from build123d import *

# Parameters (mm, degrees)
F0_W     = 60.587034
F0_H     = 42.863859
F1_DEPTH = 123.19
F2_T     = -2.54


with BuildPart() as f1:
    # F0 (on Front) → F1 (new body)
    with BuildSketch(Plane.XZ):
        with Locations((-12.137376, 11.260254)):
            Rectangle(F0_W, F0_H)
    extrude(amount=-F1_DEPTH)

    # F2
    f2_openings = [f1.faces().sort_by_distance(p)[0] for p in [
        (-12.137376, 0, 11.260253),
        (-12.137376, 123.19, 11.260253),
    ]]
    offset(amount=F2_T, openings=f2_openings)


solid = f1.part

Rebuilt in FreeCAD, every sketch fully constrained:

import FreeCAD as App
import Part
import Sketcher
from FreeCAD import Vector
Q = App.Units.Quantity


def faces_at(feature, points):
    """Names of the faces that lie closest to the given points."""
    faces = feature.Shape.Faces
    near = lambda p: min(range(len(faces)), key=lambda i: faces[i].distToShape(Part.Vertex(*p))[0])
    return sorted({f"Face{near(p) + 1}" for p in points})


def add_polygon(sketch, points):
    """Adds a closed chain of lines whose ends are joined by coincident constraints."""
    first, n = sketch.GeometryCount, len(points)
    for a, b in zip(points, points[1:] + points[:1]):
        sketch.addGeometry(Part.LineSegment(App.Vector(*a, 0), App.Vector(*b, 0)), False)
    for i in range(n):
        sketch.addConstraint(Sketcher.Constraint("Coincident", first + i, 2, first + (i + 1) % n, 1))

doc = App.newDocument("Part")
body = doc.addObject("PartDesign::Body", "Body")

sketch1 = body.newObject("Sketcher::SketchObject", "Sketch")
sketch1.AttachmentSupport = (doc.getObject("XZ_Plane"), [""])
sketch1.MapMode = "FlatFace"
add_polygon(sketch1, [(-42, 33), (-42, -10), (18, -10), (18, 33)])
sketch1.addConstraint(Sketcher.Constraint("Vertical", 0))
sketch1.addConstraint(Sketcher.Constraint("Horizontal", 1))
sketch1.addConstraint(Sketcher.Constraint("Vertical", 2))
sketch1.addConstraint(Sketcher.Constraint("Horizontal", 3))
sketch1.addConstraint(Sketcher.Constraint("DistanceY", 0, 2, 0, 1, Q("42.863859 mm")))
sketch1.addConstraint(Sketcher.Constraint("DistanceX", 1, 1, 1, 2, Q("60.587034 mm")))
sketch1.addConstraint(Sketcher.Constraint("DistanceX", -1, 1, 1, 2, Q("18.156141 mm")))
sketch1.addConstraint(Sketcher.Constraint("DistanceY", 0, 2, -1, 1, Q("10.171675 mm")))
pad1 = body.newObject("PartDesign::Pad", "Pad")
pad1.Profile = sketch1
pad1.Length = Q("4.85 in")
pad1.Reversed = True
doc.recompute()

thickness = body.newObject("PartDesign::Thickness", "Thickness")
thickness.Base = (pad1, faces_at(pad1, [(-12.137, 0, 11.26), (-12.137, 123.19, 11.26)]))
thickness.Value = Q("0.1 in")
thickness.Reversed = True
thickness.Join = "Arc"

doc.recompute()
